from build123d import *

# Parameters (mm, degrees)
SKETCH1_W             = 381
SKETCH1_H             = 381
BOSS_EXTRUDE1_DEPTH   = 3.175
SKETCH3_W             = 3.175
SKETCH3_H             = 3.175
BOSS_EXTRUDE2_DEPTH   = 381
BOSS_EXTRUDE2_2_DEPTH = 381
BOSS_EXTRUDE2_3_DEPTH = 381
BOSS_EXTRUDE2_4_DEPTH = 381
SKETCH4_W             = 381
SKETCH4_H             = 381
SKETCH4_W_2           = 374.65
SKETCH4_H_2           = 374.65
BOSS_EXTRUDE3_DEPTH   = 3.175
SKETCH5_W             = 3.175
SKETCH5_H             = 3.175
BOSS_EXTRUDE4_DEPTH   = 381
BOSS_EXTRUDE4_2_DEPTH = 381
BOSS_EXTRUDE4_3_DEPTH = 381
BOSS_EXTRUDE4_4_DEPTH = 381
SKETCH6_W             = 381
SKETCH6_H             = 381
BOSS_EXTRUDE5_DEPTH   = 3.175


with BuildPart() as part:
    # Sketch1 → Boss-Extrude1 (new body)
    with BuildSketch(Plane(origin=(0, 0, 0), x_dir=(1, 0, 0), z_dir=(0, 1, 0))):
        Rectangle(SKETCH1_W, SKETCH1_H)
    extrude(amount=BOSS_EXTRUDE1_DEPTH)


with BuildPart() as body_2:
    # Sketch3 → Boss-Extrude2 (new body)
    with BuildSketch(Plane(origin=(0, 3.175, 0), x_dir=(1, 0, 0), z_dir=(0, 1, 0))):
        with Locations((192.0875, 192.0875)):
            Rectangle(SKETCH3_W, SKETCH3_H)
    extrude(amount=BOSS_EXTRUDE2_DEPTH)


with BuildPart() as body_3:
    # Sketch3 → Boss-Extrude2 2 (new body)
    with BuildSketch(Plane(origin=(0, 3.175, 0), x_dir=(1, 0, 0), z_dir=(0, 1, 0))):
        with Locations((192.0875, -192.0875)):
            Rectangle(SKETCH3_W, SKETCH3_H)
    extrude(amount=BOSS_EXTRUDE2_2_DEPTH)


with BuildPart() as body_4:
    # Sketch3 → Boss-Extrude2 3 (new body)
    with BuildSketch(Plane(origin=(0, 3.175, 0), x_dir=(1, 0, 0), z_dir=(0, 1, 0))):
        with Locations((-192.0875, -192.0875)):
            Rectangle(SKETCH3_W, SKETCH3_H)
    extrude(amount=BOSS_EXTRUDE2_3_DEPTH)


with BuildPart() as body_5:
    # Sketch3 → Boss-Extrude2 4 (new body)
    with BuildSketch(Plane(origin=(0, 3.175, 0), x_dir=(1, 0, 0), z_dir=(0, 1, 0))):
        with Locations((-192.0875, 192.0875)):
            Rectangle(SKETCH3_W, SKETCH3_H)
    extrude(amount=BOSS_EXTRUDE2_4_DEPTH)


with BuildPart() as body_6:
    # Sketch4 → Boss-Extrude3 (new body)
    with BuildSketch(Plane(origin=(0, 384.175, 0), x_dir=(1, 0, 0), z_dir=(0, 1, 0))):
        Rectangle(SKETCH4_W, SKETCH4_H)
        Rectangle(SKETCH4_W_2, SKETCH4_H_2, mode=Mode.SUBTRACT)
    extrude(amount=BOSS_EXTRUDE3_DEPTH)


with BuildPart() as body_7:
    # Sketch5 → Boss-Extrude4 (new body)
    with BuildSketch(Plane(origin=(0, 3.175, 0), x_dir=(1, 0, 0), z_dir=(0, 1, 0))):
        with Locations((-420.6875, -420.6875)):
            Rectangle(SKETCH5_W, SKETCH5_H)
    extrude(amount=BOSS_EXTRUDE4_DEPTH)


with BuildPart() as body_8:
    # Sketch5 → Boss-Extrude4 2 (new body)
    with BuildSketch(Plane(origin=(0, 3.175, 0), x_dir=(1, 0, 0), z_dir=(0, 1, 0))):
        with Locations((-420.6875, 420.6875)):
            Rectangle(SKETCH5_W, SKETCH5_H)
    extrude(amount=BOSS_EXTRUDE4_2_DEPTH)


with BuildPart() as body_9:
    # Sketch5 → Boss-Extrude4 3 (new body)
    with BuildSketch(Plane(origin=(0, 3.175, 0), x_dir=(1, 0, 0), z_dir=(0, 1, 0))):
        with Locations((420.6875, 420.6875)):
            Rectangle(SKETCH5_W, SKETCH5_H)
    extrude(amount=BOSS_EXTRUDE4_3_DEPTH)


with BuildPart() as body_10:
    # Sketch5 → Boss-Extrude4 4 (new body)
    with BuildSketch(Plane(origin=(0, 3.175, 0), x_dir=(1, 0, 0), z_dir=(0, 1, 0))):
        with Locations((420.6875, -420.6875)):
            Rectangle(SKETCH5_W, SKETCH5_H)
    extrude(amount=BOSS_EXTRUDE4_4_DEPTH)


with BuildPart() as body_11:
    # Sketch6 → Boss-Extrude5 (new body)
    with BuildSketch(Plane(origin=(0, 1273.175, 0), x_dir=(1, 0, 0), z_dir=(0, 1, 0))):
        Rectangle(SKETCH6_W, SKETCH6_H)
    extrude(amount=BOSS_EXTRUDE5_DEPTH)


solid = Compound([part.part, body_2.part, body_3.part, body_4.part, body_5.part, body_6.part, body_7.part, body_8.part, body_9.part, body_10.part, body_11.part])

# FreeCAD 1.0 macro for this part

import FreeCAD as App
import Part
import Sketcher
from FreeCAD import Vector
Q = App.Units.Quantity

doc = App.newDocument("Part")
body = doc.addObject("PartDesign::Body", "Body")

# Sketch on XZ plane
sketch1 = body.newObject("Sketcher::SketchObject", "Sketch")
sketch1.AttachmentSupport = (doc.getObject("XZ_Plane"), [""])
sketch1.MapMode = "FlatFace"
sketch1.addGeometry([
    Part.LineSegment(Vector(-190, -190, 0), Vector(-190, 190, 0)),
    Part.LineSegment(Vector(-190, 190, 0), Vector(190, 190, 0)),
    Part.LineSegment(Vector(190, 190, 0), Vector(190, -190, 0)),
    Part.LineSegment(Vector(190, -190, 0), Vector(-190, -190, 0)),
], False)
sketch1.addConstraint([
    Sketcher.Constraint("Coincident", 0, 2, 1, 1),
    Sketcher.Constraint("Coincident", 1, 2, 2, 1),
    Sketcher.Constraint("Coincident", 2, 2, 3, 1),
    Sketcher.Constraint("Coincident", 3, 2, 0, 1),
    Sketcher.Constraint("Vertical", 0),
    Sketcher.Constraint("Horizontal", 1),
    Sketcher.Constraint("Vertical", 2),
    Sketcher.Constraint("Horizontal", 3),
    Sketcher.Constraint("Symmetric", 0, 2, 2, 2, -1, 1),
    Sketcher.Constraint("Equal", 3, 0),
    Sketcher.Constraint("DistanceX", 1, 1, 1, 2, Q("15 in")),
])
pad1 = body.newObject("PartDesign::Pad", "Pad")
pad1.Profile = sketch1
pad1.Length = Q("0.125 in")
pad1.Reversed = True
body2 = doc.addObject("PartDesign::Body", "Body001")

# Sketch on XZ plane
sketch2 = body2.newObject("Sketcher::SketchObject", "Sketch001")
sketch2.AttachmentSupport = (doc.getObject("XZ_Plane001"), [""])
sketch2.MapMode = "FlatFace"
sketch2.AttachmentOffset = App.Placement(Vector(0, 0, -0.125 * 25.4), App.Rotation())
sketch2.addGeometry([
    Part.LineSegment(Vector(190.5, -193.7, 0), Vector(190.5, -190.5, 0)),
    Part.LineSegment(Vector(190.5, -190.5, 0), Vector(193.7, -190.5, 0)),
    Part.LineSegment(Vector(193.7, -190.5, 0), Vector(193.7, -193.7, 0)),
    Part.LineSegment(Vector(193.7, -193.7, 0), Vector(190.5, -193.7, 0)),
], False)
sketch2.addConstraint([
    Sketcher.Constraint("Coincident", 0, 2, 1, 1),
    Sketcher.Constraint("Coincident", 1, 2, 2, 1),
    Sketcher.Constraint("Coincident", 2, 2, 3, 1),
    Sketcher.Constraint("Coincident", 3, 2, 0, 1),
    Sketcher.Constraint("Vertical", 0),
    Sketcher.Constraint("Horizontal", 1),
    Sketcher.Constraint("Vertical", 2),
    Sketcher.Constraint("Horizontal", 3),
    Sketcher.Constraint("Equal", 3, 0),
    Sketcher.Constraint("DistanceX", -1, 1, 0, 2, Q("7.5 in")),
    Sketcher.Constraint("DistanceY", 0, 2, -1, 1, Q("7.5 in")),
    Sketcher.Constraint("DistanceX", 1, 1, 1, 2, Q("0.125 in")),
])
pad2 = body2.newObject("PartDesign::Pad", "Pad001")
pad2.Profile = sketch2
pad2.Length = Q("15 in")
pad2.Reversed = True
body3 = doc.addObject("PartDesign::Body", "Body002")

# Sketch on XZ plane
sketch3 = body3.newObject("Sketcher::SketchObject", "Sketch002")
sketch3.AttachmentSupport = (doc.getObject("XZ_Plane002"), [""])
sketch3.MapMode = "FlatFace"
sketch3.AttachmentOffset = App.Placement(Vector(0, 0, -0.125 * 25.4), App.Rotation())
sketch3.addGeometry([
    Part.LineSegment(Vector(190.5, 190.5, 0), Vector(190.5, 193.7, 0)),
    Part.LineSegment(Vector(190.5, 193.7, 0), Vector(193.7, 193.7, 0)),
    Part.LineSegment(Vector(193.7, 193.7, 0), Vector(193.7, 190.5, 0)),
    Part.LineSegment(Vector(193.7, 190.5, 0), Vector(190.5, 190.5, 0)),
], False)
sketch3.addConstraint([
    Sketcher.Constraint("Coincident", 0, 2, 1, 1),
    Sketcher.Constraint("Coincident", 1, 2, 2, 1),
    Sketcher.Constraint("Coincident", 2, 2, 3, 1),
    Sketcher.Constraint("Coincident", 3, 2, 0, 1),
    Sketcher.Constraint("Vertical", 0),
    Sketcher.Constraint("Horizontal", 1),
    Sketcher.Constraint("Vertical", 2),
    Sketcher.Constraint("Horizontal", 3),
    Sketcher.Constraint("Equal", 3, 0),
    Sketcher.Constraint("DistanceX", -1, 1, 0, 2, Q("7.5 in")),
    Sketcher.Constraint("DistanceY", -1, 1, 2, 2, Q("7.5 in")),
    Sketcher.Constraint("DistanceX", 1, 1, 1, 2, Q("0.125 in")),
])
pad3 = body3.newObject("PartDesign::Pad", "Pad002")
pad3.Profile = sketch3
pad3.Length = Q("15 in")
pad3.Reversed = True
body4 = doc.addObject("PartDesign::Body", "Body003")

# Sketch on XZ plane
sketch4 = body4.newObject("Sketcher::SketchObject", "Sketch003")
sketch4.AttachmentSupport = (doc.getObject("XZ_Plane003"), [""])
sketch4.MapMode = "FlatFace"
sketch4.AttachmentOffset = App.Placement(Vector(0, 0, -0.125 * 25.4), App.Rotation())
sketch4.addGeometry([
    Part.LineSegment(Vector(-193.7, 190.5, 0), Vector(-193.7, 193.7, 0)),
    Part.LineSegment(Vector(-193.7, 193.7, 0), Vector(-190.5, 193.7, 0)),
    Part.LineSegment(Vector(-190.5, 193.7, 0), Vector(-190.5, 190.5, 0)),
    Part.LineSegment(Vector(-190.5, 190.5, 0), Vector(-193.7, 190.5, 0)),
], False)
sketch4.addConstraint([
    Sketcher.Constraint("Coincident", 0, 2, 1, 1),
    Sketcher.Constraint("Coincident", 1, 2, 2, 1),
    Sketcher.Constraint("Coincident", 2, 2, 3, 1),
    Sketcher.Constraint("Coincident", 3, 2, 0, 1),
    Sketcher.Constraint("Vertical", 0),
    Sketcher.Constraint("Horizontal", 1),
    Sketcher.Constraint("Vertical", 2),
    Sketcher.Constraint("Horizontal", 3),
    Sketcher.Constraint("Equal", 3, 0),
    Sketcher.Constraint("DistanceX", 1, 2, -1, 1, Q("7.5 in")),
    Sketcher.Constraint("DistanceY", -1, 1, 2, 2, Q("7.5 in")),
    Sketcher.Constraint("DistanceX", 1, 1, 1, 2, Q("0.125 in")),
])
pad4 = body4.newObject("PartDesign::Pad", "Pad003")
pad4.Profile = sketch4
pad4.Length = Q("15 in")
pad4.Reversed = True
body5 = doc.addObject("PartDesign::Body", "Body004")

# Sketch on XZ plane
sketch5 = body5.newObject("Sketcher::SketchObject", "Sketch004")
sketch5.AttachmentSupport = (doc.getObject("XZ_Plane004"), [""])
sketch5.MapMode = "FlatFace"
sketch5.AttachmentOffset = App.Placement(Vector(0, 0, -0.125 * 25.4), App.Rotation())
sketch5.addGeometry([
    Part.LineSegment(Vector(-193.7, -193.7, 0), Vector(-193.7, -190.5, 0)),
    Part.LineSegment(Vector(-193.7, -190.5, 0), Vector(-190.5, -190.5, 0)),
    Part.LineSegment(Vector(-190.5, -190.5, 0), Vector(-190.5, -193.7, 0)),
    Part.LineSegment(Vector(-190.5, -193.7, 0), Vector(-193.7, -193.7, 0)),
], False)
sketch5.addConstraint([
    Sketcher.Constraint("Coincident", 0, 2, 1, 1),
    Sketcher.Constraint("Coincident", 1, 2, 2, 1),
    Sketcher.Constraint("Coincident", 2, 2, 3, 1),
    Sketcher.Constraint("Coincident", 3, 2, 0, 1),
    Sketcher.Constraint("Vertical", 0),
    Sketcher.Constraint("Horizontal", 1),
    Sketcher.Constraint("Vertical", 2),
    Sketcher.Constraint("Horizontal", 3),
    Sketcher.Constraint("Equal", 3, 0),
    Sketcher.Constraint("DistanceY", 0, 2, -1, 1, Q("7.5 in")),
    Sketcher.Constraint("DistanceX", 1, 2, -1, 1, Q("7.5 in")),
    Sketcher.Constraint("DistanceX", 1, 1, 1, 2, Q("0.125 in")),
])
pad5 = body5.newObject("PartDesign::Pad", "Pad004")
pad5.Profile = sketch5
pad5.Length = Q("15 in")
pad5.Reversed = True
body6 = doc.addObject("PartDesign::Body", "Body005")

# Sketch on XZ plane
sketch6 = body6.newObject("Sketcher::SketchObject", "Sketch005")
sketch6.AttachmentSupport = (doc.getObject("XZ_Plane005"), [""])
sketch6.MapMode = "FlatFace"
sketch6.AttachmentOffset = App.Placement(Vector(0, 0, -15.125 * 25.4), App.Rotation())
sketch6.addGeometry([
    Part.LineSegment(Vector(-190, -190, 0), Vector(-190, 190, 0)),  # 0
    Part.LineSegment(Vector(-190, 190, 0), Vector(190, 190, 0)),  # 1
    Part.LineSegment(Vector(190, 190, 0), Vector(190, -190, 0)),  # 2
    Part.LineSegment(Vector(190, -190, 0), Vector(-190, -190, 0)),  # 3
    Part.LineSegment(Vector(187, 187, 0), Vector(-187, 187, 0)),  # 4
    Part.LineSegment(Vector(-187, 187, 0), Vector(-187, -187, 0)),  # 5
    Part.LineSegment(Vector(-187, -187, 0), Vector(187, -187, 0)),  # 6
    Part.LineSegment(Vector(187, -187, 0), Vector(187, 187, 0)),  # 7
], False)
sketch6.addConstraint([
    Sketcher.Constraint("Coincident", 0, 2, 1, 1),
    Sketcher.Constraint("Coincident", 1, 2, 2, 1),
    Sketcher.Constraint("Coincident", 2, 2, 3, 1),
    Sketcher.Constraint("Coincident", 3, 2, 0, 1),
    Sketcher.Constraint("Coincident", 4, 2, 5, 1),
    Sketcher.Constraint("Coincident", 5, 2, 6, 1),
    Sketcher.Constraint("Coincident", 6, 2, 7, 1),
    Sketcher.Constraint("Coincident", 7, 2, 4, 1),
    Sketcher.Constraint("Vertical", 0),
    Sketcher.Constraint("Horizontal", 1),
    Sketcher.Constraint("Vertical", 2),
    Sketcher.Constraint("Horizontal", 3),
    Sketcher.Constraint("Horizontal", 4),
    Sketcher.Constraint("Vertical", 5),
    Sketcher.Constraint("Horizontal", 6),
    Sketcher.Constraint("Vertical", 7),
    Sketcher.Constraint("Symmetric", 0, 2, 2, 2, -1, 1),
    Sketcher.Constraint("Symmetric", 4, 2, 6, 2, -1, 1),
    Sketcher.Constraint("Equal", 3, 0),
    Sketcher.Constraint("Equal", 6, 5),
    Sketcher.Constraint("DistanceX", 1, 1, 1, 2, Q("15 in")),
    Sketcher.Constraint("DistanceX", 4, 2, 4, 1, Q("14.75 in")),
])
pad6 = body6.newObject("PartDesign::Pad", "Pad005")
pad6.Profile = sketch6
pad6.Length = Q("0.125 in")
pad6.Reversed = True
body7 = doc.addObject("PartDesign::Body", "Body006")

# Sketch on XZ plane
sketch7 = body7.newObject("Sketcher::SketchObject", "Sketch006")
sketch7.AttachmentSupport = (doc.getObject("XZ_Plane006"), [""])
sketch7.MapMode = "FlatFace"
sketch7.AttachmentOffset = App.Placement(Vector(0, 0, -0.125 * 25.4), App.Rotation())
sketch7.addGeometry([
    Part.LineSegment(Vector(-422.3, 419.1, 0), Vector(-422.3, 422.3, 0)),
    Part.LineSegment(Vector(-422.3, 422.3, 0), Vector(-419.1, 422.3, 0)),
    Part.LineSegment(Vector(-419.1, 422.3, 0), Vector(-419.1, 419.1, 0)),
    Part.LineSegment(Vector(-419.1, 419.1, 0), Vector(-422.3, 419.1, 0)),
], False)
sketch7.addConstraint([
    Sketcher.Constraint("Coincident", 0, 2, 1, 1),
    Sketcher.Constraint("Coincident", 1, 2, 2, 1),
    Sketcher.Constraint("Coincident", 2, 2, 3, 1),
    Sketcher.Constraint("Coincident", 3, 2, 0, 1),
    Sketcher.Constraint("Vertical", 0),
    Sketcher.Constraint("Horizontal", 1),
    Sketcher.Constraint("Vertical", 2),
    Sketcher.Constraint("Horizontal", 3),
    Sketcher.Constraint("Equal", 3, 0),
    Sketcher.Constraint("DistanceX", 1, 2, -1, 1, Q("16.5 in")),
    Sketcher.Constraint("DistanceY", -1, 1, 2, 2, Q("16.5 in")),
    Sketcher.Constraint("DistanceX", 1, 1, 1, 2, Q("0.125 in")),
])
pad7 = body7.newObject("PartDesign::Pad", "Pad006")
pad7.Profile = sketch7
pad7.Length = Q("15 in")
pad7.Reversed = True
body8 = doc.addObject("PartDesign::Body", "Body007")

# Sketch on XZ plane
sketch8 = body8.newObject("Sketcher::SketchObject", "Sketch007")
sketch8.AttachmentSupport = (doc.getObject("XZ_Plane007"), [""])
sketch8.MapMode = "FlatFace"
sketch8.AttachmentOffset = App.Placement(Vector(0, 0, -0.125 * 25.4), App.Rotation())
sketch8.addGeometry([
    Part.LineSegment(Vector(-422.3, -422.3, 0), Vector(-422.3, -419.1, 0)),
    Part.LineSegment(Vector(-422.3, -419.1, 0), Vector(-419.1, -419.1, 0)),
    Part.LineSegment(Vector(-419.1, -419.1, 0), Vector(-419.1, -422.3, 0)),
    Part.LineSegment(Vector(-419.1, -422.3, 0), Vector(-422.3, -422.3, 0)),
], False)
sketch8.addConstraint([
    Sketcher.Constraint("Coincident", 0, 2, 1, 1),
    Sketcher.Constraint("Coincident", 1, 2, 2, 1),
    Sketcher.Constraint("Coincident", 2, 2, 3, 1),
    Sketcher.Constraint("Coincident", 3, 2, 0, 1),
    Sketcher.Constraint("Vertical", 0),
    Sketcher.Constraint("Horizontal", 1),
    Sketcher.Constraint("Vertical", 2),
    Sketcher.Constraint("Horizontal", 3),
    Sketcher.Constraint("Equal", 3, 0),
    Sketcher.Constraint("DistanceY", 0, 2, -1, 1, Q("16.5 in")),
    Sketcher.Constraint("DistanceX", 1, 2, -1, 1, Q("16.5 in")),
    Sketcher.Constraint("DistanceX", 1, 1, 1, 2, Q("0.125 in")),
])
pad8 = body8.newObject("PartDesign::Pad", "Pad007")
pad8.Profile = sketch8
pad8.Length = Q("15 in")
pad8.Reversed = True
body9 = doc.addObject("PartDesign::Body", "Body008")

# Sketch on XZ plane
sketch9 = body9.newObject("Sketcher::SketchObject", "Sketch008")
sketch9.AttachmentSupport = (doc.getObject("XZ_Plane008"), [""])
sketch9.MapMode = "FlatFace"
sketch9.AttachmentOffset = App.Placement(Vector(0, 0, -0.125 * 25.4), App.Rotation())
sketch9.addGeometry([
    Part.LineSegment(Vector(419.1, -422.3, 0), Vector(419.1, -419.1, 0)),
    Part.LineSegment(Vector(419.1, -419.1, 0), Vector(422.3, -419.1, 0)),
    Part.LineSegment(Vector(422.3, -419.1, 0), Vector(422.3, -422.3, 0)),
    Part.LineSegment(Vector(422.3, -422.3, 0), Vector(419.1, -422.3, 0)),
], False)
sketch9.addConstraint([
    Sketcher.Constraint("Coincident", 0, 2, 1, 1),
    Sketcher.Constraint("Coincident", 1, 2, 2, 1),
    Sketcher.Constraint("Coincident", 2, 2, 3, 1),
    Sketcher.Constraint("Coincident", 3, 2, 0, 1),
    Sketcher.Constraint("Vertical", 0),
    Sketcher.Constraint("Horizontal", 1),
    Sketcher.Constraint("Vertical", 2),
    Sketcher.Constraint("Horizontal", 3),
    Sketcher.Constraint("Equal", 3, 0),
    Sketcher.Constraint("DistanceX", -1, 1, 0, 2, Q("16.5 in")),
    Sketcher.Constraint("DistanceY", 0, 2, -1, 1, Q("16.5 in")),
    Sketcher.Constraint("DistanceX", 1, 1, 1, 2, Q("0.125 in")),
])
pad9 = body9.newObject("PartDesign::Pad", "Pad008")
pad9.Profile = sketch9
pad9.Length = Q("15 in")
pad9.Reversed = True
body10 = doc.addObject("PartDesign::Body", "Body009")

# Sketch on XZ plane
sketch10 = body10.newObject("Sketcher::SketchObject", "Sketch009")
sketch10.AttachmentSupport = (doc.getObject("XZ_Plane009"), [""])
sketch10.MapMode = "FlatFace"
sketch10.AttachmentOffset = App.Placement(Vector(0, 0, -0.125 * 25.4), App.Rotation())
sketch10.addGeometry([
    Part.LineSegment(Vector(419.1, 419.1, 0), Vector(419.1, 422.3, 0)),
    Part.LineSegment(Vector(419.1, 422.3, 0), Vector(422.3, 422.3, 0)),
    Part.LineSegment(Vector(422.3, 422.3, 0), Vector(422.3, 419.1, 0)),
    Part.LineSegment(Vector(422.3, 419.1, 0), Vector(419.1, 419.1, 0)),
], False)
sketch10.addConstraint([
    Sketcher.Constraint("Coincident", 0, 2, 1, 1),
    Sketcher.Constraint("Coincident", 1, 2, 2, 1),
    Sketcher.Constraint("Coincident", 2, 2, 3, 1),
    Sketcher.Constraint("Coincident", 3, 2, 0, 1),
    Sketcher.Constraint("Vertical", 0),
    Sketcher.Constraint("Horizontal", 1),
    Sketcher.Constraint("Vertical", 2),
    Sketcher.Constraint("Horizontal", 3),
    Sketcher.Constraint("Equal", 3, 0),
    Sketcher.Constraint("DistanceX", -1, 1, 0, 2, Q("16.5 in")),
    Sketcher.Constraint("DistanceY", -1, 1, 2, 2, Q("16.5 in")),
    Sketcher.Constraint("DistanceX", 1, 1, 1, 2, Q("0.125 in")),
])
pad10 = body10.newObject("PartDesign::Pad", "Pad009")
pad10.Profile = sketch10
pad10.Length = Q("15 in")
pad10.Reversed = True
body11 = doc.addObject("PartDesign::Body", "Body010")

# Sketch on XZ plane
sketch11 = body11.newObject("Sketcher::SketchObject", "Sketch010")
sketch11.AttachmentSupport = (doc.getObject("XZ_Plane010"), [""])
sketch11.MapMode = "FlatFace"
sketch11.AttachmentOffset = App.Placement(Vector(0, 0, -50.125 * 25.4), App.Rotation())
sketch11.addGeometry([
    Part.LineSegment(Vector(-190, -190, 0), Vector(-190, 190, 0)),
    Part.LineSegment(Vector(-190, 190, 0), Vector(190, 190, 0)),
    Part.LineSegment(Vector(190, 190, 0), Vector(190, -190, 0)),
    Part.LineSegment(Vector(190, -190, 0), Vector(-190, -190, 0)),
], False)
sketch11.addConstraint([
    Sketcher.Constraint("Coincident", 0, 2, 1, 1),
    Sketcher.Constraint("Coincident", 1, 2, 2, 1),
    Sketcher.Constraint("Coincident", 2, 2, 3, 1),
    Sketcher.Constraint("Coincident", 3, 2, 0, 1),
    Sketcher.Constraint("Vertical", 0),
    Sketcher.Constraint("Horizontal", 1),
    Sketcher.Constraint("Vertical", 2),
    Sketcher.Constraint("Horizontal", 3),
    Sketcher.Constraint("Symmetric", 0, 2, 2, 2, -1, 1),
    Sketcher.Constraint("Equal", 3, 0),
    Sketcher.Constraint("DistanceX", 1, 1, 1, 2, Q("15 in")),
])
pad11 = body11.newObject("PartDesign::Pad", "Pad010")
pad11.Profile = sketch11
pad11.Length = Q("0.125 in")
pad11.Reversed = True

doc.recompute()
